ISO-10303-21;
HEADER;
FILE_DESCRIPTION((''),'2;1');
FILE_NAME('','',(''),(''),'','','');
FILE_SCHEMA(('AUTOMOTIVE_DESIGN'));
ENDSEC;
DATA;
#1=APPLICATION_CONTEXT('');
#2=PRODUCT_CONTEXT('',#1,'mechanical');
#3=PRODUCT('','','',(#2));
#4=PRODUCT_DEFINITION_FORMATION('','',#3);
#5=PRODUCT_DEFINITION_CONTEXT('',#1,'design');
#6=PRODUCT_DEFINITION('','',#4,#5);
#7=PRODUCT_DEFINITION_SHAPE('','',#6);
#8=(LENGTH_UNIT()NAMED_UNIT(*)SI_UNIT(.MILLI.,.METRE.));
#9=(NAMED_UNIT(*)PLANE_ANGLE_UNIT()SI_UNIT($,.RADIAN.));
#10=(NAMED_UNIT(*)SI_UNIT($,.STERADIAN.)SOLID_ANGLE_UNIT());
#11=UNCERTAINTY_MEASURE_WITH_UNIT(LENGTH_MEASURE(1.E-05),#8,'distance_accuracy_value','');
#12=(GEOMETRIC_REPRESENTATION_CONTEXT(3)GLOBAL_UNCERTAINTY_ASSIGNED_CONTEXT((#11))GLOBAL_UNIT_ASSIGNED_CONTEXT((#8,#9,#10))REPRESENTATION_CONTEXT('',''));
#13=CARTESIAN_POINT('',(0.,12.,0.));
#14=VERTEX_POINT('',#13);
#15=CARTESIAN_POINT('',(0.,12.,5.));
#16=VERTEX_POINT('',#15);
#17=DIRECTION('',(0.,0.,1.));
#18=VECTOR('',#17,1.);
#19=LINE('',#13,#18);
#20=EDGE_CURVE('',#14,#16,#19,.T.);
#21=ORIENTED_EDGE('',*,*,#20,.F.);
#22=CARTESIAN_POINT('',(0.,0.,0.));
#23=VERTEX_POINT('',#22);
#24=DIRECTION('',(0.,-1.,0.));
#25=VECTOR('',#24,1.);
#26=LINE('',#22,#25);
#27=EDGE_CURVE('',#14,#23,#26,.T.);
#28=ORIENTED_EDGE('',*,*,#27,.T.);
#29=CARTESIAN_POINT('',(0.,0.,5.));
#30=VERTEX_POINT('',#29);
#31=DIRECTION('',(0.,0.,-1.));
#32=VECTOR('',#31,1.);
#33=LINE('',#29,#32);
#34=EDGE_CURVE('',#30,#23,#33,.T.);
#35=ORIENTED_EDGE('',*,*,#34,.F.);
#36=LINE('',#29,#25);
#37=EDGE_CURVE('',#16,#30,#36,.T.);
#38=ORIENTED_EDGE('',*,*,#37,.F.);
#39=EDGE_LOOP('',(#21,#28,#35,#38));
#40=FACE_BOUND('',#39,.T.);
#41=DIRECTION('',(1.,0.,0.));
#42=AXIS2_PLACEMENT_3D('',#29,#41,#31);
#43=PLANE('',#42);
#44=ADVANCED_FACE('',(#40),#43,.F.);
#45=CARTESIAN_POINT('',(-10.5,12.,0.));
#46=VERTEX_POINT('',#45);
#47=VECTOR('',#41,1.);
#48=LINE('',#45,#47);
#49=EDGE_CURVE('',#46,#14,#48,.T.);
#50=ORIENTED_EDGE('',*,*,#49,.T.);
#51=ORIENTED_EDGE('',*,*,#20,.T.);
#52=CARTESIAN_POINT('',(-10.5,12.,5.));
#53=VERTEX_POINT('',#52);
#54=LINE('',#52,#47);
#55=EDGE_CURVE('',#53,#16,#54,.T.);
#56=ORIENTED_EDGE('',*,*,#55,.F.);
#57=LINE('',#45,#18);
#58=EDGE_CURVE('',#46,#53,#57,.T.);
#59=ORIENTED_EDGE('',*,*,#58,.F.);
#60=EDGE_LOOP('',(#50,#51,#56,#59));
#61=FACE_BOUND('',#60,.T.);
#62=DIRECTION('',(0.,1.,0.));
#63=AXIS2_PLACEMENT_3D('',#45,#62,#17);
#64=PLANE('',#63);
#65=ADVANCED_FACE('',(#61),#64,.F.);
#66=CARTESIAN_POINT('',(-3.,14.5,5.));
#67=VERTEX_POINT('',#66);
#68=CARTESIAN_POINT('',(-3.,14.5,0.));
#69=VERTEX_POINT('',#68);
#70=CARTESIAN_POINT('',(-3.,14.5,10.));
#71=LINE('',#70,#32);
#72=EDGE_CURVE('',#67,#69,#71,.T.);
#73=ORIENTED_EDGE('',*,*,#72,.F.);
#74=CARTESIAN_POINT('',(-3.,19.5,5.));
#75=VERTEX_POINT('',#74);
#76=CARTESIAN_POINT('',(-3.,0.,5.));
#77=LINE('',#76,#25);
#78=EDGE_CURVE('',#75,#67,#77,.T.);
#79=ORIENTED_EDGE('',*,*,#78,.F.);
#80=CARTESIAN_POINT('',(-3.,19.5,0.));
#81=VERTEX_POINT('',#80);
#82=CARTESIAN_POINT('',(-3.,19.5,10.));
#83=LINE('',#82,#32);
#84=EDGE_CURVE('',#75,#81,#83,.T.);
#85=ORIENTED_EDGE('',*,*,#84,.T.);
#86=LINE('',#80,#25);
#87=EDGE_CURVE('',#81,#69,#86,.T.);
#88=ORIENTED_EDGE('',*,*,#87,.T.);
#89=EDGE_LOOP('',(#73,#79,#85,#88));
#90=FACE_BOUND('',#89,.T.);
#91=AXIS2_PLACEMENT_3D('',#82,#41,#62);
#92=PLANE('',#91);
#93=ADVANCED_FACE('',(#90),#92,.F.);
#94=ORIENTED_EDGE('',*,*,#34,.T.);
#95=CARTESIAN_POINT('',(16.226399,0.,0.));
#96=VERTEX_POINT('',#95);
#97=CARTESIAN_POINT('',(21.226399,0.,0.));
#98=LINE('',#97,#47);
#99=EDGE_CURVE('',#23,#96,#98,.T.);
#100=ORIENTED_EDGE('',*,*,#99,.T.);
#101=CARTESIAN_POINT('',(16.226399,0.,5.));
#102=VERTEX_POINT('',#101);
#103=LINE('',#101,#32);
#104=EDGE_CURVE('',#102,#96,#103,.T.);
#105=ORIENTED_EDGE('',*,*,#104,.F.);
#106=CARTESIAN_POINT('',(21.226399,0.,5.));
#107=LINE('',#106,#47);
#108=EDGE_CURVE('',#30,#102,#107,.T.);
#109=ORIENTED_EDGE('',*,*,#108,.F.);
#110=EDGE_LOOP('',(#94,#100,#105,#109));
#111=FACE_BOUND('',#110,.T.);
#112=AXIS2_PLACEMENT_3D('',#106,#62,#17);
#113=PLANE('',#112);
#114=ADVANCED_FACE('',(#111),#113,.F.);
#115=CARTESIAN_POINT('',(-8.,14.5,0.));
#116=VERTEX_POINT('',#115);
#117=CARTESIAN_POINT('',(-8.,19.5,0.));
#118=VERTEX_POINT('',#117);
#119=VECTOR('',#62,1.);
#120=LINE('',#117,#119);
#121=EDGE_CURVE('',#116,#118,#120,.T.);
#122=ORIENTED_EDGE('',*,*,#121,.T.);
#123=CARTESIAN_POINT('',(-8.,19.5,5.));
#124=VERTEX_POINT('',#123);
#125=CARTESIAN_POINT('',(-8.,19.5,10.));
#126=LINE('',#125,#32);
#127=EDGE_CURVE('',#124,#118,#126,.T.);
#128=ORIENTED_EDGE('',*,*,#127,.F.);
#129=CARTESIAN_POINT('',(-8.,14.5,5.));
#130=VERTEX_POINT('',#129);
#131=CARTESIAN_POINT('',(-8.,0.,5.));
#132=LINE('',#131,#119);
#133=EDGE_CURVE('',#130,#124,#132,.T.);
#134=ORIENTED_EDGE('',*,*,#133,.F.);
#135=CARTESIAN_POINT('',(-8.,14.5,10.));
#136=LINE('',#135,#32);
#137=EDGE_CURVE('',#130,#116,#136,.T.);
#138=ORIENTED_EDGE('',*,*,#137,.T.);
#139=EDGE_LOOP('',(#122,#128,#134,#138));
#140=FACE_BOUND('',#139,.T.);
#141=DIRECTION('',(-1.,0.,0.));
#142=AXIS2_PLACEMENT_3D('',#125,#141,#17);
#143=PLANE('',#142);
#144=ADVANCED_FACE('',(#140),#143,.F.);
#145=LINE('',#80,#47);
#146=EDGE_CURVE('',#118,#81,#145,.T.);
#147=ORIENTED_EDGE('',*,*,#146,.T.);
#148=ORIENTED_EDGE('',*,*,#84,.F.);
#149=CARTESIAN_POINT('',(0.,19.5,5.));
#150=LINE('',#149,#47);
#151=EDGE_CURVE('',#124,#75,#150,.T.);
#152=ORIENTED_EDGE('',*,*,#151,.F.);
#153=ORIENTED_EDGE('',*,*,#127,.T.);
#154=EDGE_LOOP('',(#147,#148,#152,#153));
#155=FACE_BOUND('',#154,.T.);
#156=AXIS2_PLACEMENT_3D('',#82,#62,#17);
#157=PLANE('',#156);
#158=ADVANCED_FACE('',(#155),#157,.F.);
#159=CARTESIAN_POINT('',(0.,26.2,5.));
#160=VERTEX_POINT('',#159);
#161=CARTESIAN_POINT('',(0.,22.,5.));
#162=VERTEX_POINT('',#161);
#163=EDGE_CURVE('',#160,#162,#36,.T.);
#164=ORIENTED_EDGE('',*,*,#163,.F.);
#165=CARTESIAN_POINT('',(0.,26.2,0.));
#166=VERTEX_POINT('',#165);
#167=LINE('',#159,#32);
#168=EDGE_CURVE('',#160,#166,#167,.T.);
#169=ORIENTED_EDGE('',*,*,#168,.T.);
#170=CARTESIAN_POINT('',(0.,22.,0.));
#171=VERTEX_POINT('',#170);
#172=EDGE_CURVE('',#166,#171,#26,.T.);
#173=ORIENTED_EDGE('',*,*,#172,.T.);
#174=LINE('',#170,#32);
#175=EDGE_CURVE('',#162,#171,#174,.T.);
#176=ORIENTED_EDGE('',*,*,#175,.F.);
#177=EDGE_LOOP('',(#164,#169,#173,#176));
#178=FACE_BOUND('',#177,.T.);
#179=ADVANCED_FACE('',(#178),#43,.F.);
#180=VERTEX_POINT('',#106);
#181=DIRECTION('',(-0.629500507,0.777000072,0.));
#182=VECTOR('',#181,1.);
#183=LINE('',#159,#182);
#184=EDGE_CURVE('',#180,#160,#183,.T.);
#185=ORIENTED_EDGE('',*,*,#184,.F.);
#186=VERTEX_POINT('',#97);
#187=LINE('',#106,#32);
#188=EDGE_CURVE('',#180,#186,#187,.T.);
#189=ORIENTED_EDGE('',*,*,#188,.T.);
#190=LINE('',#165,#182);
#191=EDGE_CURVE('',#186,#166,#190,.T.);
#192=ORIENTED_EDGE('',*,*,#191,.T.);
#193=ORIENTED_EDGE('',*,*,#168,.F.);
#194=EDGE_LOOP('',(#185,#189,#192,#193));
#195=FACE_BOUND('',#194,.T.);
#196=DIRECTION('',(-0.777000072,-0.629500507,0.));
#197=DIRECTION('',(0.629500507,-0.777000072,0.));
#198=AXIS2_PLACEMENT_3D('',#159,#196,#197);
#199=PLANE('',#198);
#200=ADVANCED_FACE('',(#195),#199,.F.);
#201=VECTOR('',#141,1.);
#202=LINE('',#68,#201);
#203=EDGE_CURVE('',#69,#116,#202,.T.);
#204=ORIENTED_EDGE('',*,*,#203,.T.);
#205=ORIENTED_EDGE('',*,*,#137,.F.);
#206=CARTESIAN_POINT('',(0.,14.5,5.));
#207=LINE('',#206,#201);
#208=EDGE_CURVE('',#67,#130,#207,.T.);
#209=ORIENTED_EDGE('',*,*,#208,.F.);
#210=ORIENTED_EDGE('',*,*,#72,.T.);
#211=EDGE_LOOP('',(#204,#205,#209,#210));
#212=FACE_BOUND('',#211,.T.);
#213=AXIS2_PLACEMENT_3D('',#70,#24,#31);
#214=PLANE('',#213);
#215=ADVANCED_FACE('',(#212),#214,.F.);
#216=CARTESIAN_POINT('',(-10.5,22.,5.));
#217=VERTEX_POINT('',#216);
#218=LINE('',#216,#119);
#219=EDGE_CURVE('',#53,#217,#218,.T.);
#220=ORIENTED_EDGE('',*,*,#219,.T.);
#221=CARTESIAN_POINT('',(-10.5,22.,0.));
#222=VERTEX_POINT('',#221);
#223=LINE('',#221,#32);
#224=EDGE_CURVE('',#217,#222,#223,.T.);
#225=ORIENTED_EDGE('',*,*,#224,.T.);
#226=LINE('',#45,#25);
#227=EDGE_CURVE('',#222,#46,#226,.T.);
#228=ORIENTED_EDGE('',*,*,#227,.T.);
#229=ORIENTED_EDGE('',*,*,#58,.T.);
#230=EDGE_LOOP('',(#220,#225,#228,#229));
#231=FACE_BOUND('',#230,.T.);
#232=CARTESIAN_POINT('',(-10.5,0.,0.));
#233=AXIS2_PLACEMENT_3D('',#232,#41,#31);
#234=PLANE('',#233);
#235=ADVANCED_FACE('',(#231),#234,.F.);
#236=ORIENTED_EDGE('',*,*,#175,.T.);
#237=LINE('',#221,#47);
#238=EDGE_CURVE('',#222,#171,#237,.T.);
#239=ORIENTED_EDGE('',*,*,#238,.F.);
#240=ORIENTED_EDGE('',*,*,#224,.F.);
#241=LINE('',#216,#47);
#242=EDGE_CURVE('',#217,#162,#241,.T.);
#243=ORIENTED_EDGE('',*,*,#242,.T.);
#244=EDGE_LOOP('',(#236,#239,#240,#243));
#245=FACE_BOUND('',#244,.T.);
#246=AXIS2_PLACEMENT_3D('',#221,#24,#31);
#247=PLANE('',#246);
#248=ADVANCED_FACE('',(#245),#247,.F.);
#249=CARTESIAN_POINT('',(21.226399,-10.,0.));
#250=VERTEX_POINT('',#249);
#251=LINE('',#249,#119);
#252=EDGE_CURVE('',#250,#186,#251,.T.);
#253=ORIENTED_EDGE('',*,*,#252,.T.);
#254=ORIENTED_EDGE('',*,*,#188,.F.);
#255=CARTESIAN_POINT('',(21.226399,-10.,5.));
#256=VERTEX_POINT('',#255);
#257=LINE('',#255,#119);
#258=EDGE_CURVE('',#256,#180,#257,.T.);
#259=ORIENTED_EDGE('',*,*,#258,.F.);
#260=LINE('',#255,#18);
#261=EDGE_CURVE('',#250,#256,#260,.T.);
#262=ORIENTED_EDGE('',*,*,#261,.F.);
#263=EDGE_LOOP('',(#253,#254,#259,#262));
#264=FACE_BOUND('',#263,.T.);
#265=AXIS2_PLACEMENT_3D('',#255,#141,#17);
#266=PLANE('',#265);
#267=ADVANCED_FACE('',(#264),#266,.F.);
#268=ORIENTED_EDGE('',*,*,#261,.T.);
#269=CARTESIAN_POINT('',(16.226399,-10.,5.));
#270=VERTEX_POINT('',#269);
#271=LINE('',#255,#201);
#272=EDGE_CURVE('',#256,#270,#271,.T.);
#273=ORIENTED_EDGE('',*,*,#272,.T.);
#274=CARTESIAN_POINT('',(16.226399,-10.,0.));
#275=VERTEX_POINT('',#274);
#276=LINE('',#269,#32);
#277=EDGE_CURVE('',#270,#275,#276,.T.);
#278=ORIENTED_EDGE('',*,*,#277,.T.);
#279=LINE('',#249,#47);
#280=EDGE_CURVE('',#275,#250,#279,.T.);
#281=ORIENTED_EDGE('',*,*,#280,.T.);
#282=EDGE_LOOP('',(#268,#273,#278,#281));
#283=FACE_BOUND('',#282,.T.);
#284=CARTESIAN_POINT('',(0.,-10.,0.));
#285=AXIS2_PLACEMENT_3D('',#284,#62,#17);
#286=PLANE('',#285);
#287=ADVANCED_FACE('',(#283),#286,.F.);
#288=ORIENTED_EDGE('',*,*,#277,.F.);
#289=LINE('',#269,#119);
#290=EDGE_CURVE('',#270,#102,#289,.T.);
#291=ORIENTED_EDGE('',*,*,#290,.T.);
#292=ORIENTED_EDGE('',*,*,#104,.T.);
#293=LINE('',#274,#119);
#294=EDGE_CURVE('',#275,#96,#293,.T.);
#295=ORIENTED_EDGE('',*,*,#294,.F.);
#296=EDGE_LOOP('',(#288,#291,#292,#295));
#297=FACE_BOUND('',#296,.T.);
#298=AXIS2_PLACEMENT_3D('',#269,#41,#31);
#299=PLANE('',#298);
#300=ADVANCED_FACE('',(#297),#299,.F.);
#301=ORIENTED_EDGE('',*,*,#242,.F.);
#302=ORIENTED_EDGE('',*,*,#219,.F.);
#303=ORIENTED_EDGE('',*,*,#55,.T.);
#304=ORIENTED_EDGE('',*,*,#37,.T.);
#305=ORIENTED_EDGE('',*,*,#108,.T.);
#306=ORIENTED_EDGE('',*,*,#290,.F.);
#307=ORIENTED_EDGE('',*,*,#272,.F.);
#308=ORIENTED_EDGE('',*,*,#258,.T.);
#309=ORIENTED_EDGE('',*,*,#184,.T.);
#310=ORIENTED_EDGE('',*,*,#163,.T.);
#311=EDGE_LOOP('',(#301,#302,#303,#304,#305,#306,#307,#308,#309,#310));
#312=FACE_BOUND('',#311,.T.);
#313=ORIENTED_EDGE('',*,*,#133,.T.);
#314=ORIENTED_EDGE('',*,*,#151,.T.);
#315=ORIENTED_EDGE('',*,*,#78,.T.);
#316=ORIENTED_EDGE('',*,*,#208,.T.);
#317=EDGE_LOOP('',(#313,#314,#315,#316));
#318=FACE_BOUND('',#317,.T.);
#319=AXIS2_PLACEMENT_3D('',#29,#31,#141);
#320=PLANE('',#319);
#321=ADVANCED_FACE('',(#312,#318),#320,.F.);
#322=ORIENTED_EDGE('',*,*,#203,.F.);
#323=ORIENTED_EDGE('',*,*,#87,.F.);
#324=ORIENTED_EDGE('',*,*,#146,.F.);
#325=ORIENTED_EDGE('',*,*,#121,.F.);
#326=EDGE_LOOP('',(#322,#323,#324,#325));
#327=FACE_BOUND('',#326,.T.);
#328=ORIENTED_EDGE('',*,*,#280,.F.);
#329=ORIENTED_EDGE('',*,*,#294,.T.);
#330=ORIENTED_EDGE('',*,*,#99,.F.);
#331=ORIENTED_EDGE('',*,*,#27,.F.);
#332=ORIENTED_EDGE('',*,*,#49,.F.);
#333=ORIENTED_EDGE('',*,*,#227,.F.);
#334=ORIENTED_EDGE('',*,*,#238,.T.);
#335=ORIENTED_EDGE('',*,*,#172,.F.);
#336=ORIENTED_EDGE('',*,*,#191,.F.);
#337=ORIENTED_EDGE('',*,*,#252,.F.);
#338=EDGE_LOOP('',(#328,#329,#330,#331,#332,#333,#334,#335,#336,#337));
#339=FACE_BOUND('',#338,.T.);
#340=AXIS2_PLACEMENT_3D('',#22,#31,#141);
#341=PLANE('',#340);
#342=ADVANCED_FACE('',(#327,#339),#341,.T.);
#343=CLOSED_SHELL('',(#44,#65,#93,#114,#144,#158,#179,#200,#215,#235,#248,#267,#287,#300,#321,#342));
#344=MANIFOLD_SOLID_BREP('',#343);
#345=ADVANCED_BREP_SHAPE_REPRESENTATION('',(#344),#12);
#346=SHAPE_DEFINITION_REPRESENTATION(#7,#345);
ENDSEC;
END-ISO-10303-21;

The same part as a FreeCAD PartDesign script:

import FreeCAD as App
import Part
import Sketcher

V = App.Vector
Q = App.Units.Quantity

doc = App.newDocument("Part")
body = doc.addObject("PartDesign::Body", "Body")

# Sketch on XY plane
sketch1 = body.newObject("Sketcher::SketchObject", "Sketch")
sketch1.AttachmentSupport = (doc.getObject("XY_Plane"), [""])
sketch1.MapMode = "FlatFace"
sketch1.addGeometry([
    Part.LineSegment(V(0, 26, 0), V(0, 0, 0)),
    Part.LineSegment(V(0, 0, 0), V(21, 0, 0)),
    Part.LineSegment(V(21, 0, 0), V(0, 26, 0)),
], False)
sketch1.addConstraint([
    Sketcher.Constraint("Coincident", 0, 2, 1, 1),
    Sketcher.Constraint("Coincident", 1, 2, 2, 1),
    Sketcher.Constraint("Coincident", 2, 2, 0, 1),
    Sketcher.Constraint("Vertical", 0),
    Sketcher.Constraint("Horizontal", 1),
    Sketcher.Constraint("Coincident", 0, 2, -1, 1),
    Sketcher.Constraint("DistanceY", 0, 2, 0, 1, Q("26.2 mm")),
    Sketcher.Constraint("DistanceX", 1, 1, 1, 2, Q("21.226399 mm")),
])
pad1 = body.newObject("PartDesign::Pad", "Pad")
pad1.Profile = sketch1
pad1.Length = 5

# Sketch on XZ plane
sketch2 = body.newObject("Sketcher::SketchObject", "Sketch001")
sketch2.AttachmentSupport = (doc.getObject("XZ_Plane"), [""])
sketch2.MapMode = "FlatFace"
sketch2.addGeometry([
    Part.LineSegment(V(16, 5, 0), V(16, 0, 0)),
    Part.LineSegment(V(16, 0, 0), V(21, 0, 0)),
    Part.LineSegment(V(21, 0, 0), V(21, 5, 0)),
    Part.LineSegment(V(21, 5, 0), V(16, 5, 0)),
], False)
sketch2.addConstraint([
    Sketcher.Constraint("Coincident", 0, 2, 1, 1),
    Sketcher.Constraint("Coincident", 1, 2, 2, 1),
    Sketcher.Constraint("Coincident", 2, 2, 3, 1),
    Sketcher.Constraint("Coincident", 3, 2, 0, 1),
    Sketcher.Constraint("Vertical", 0),
    Sketcher.Constraint("Horizontal", 1),
    Sketcher.Constraint("Vertical", 2),
    Sketcher.Constraint("Horizontal", 3),
    Sketcher.Constraint("PointOnObject", 0, 2, -1),
    Sketcher.Constraint("Equal", 3, 0),
    Sketcher.Constraint("DistanceX", 1, 1, 1, 2, Q("5 mm")),
    Sketcher.Constraint("DistanceX", -1, 1, 0, 2, Q("16.226399 mm")),
])
pad2 = body.newObject("PartDesign::Pad", "Pad001")
pad2.Profile = sketch2
pad2.Length = 10

# Sketch on YZ plane
sketch3 = body.newObject("Sketcher::SketchObject", "Sketch002")
sketch3.AttachmentSupport = (doc.getObject("YZ_Plane"), [""])
sketch3.MapMode = "FlatFace"
sketch3.addGeometry([
    Part.LineSegment(V(22, 0, 0), V(12, 0, 0)),
    Part.LineSegment(V(12, 0, 0), V(12, 5, 0)),
    Part.LineSegment(V(12, 5, 0), V(22, 5, 0)),
    Part.LineSegment(V(22, 5, 0), V(22, 0, 0)),
], False)
sketch3.addConstraint([
    Sketcher.Constraint("Coincident", 0, 2, 1, 1),
    Sketcher.Constraint("Coincident", 1, 2, 2, 1),
    Sketcher.Constraint("Coincident", 2, 2, 3, 1),
    Sketcher.Constraint("Coincident", 3, 2, 0, 1),
    Sketcher.Constraint("Horizontal", 0),
    Sketcher.Constraint("Vertical", 1),
    Sketcher.Constraint("Horizontal", 2),
    Sketcher.Constraint("Vertical", 3),
    Sketcher.Constraint("PointOnObject", 0, 2, -1),
    Sketcher.Constraint("DistanceX", 0, 2, 0, 1, Q("10 mm")),
    Sketcher.Constraint("DistanceY", 1, 1, 1, 2, Q("5 mm")),
    Sketcher.Constraint("DistanceX", -1, 1, 0, 2, Q("12 mm")),
])
pad3 = body.newObject("PartDesign::Pad", "Pad002")
pad3.Profile = sketch3
pad3.Length = 10.5
pad3.Reversed = True

# Sketch on XY plane
sketch4 = body.newObject("Sketcher::SketchObject", "Sketch003")
sketch4.AttachmentSupport = (doc.getObject("XY_Plane"), [""])
sketch4.MapMode = "FlatFace"
sketch4.addGeometry([
    Part.LineSegment(V(-3, 20, 0), V(-3, 14, 0)),
    Part.LineSegment(V(-3, 14, 0), V(-8, 14, 0)),
    Part.LineSegment(V(-8, 14, 0), V(-8, 20, 0)),
    Part.LineSegment(V(-8, 20, 0), V(-3, 20, 0)),
], False)
sketch4.addConstraint([
    Sketcher.Constraint("Coincident", 0, 2, 1, 1),
    Sketcher.Constraint("Coincident", 1, 2, 2, 1),
    Sketcher.Constraint("Coincident", 2, 2, 3, 1),
    Sketcher.Constraint("Coincident", 3, 2, 0, 1),
    Sketcher.Constraint("Vertical", 0),
    Sketcher.Constraint("Horizontal", 1),
    Sketcher.Constraint("Vertical", 2),
    Sketcher.Constraint("Horizontal", 3),
    Sketcher.Constraint("Equal", 3, 0),
    Sketcher.Constraint("DistanceX", 1, 2, 1, 1, Q("5 mm")),
    Sketcher.Constraint("DistanceX", 0, 2, -1, 1, Q("3 mm")),
    Sketcher.Constraint("DistanceY", -1, 1, 0, 2, Q("14.5 mm")),
])
pocket1 = body.newObject("PartDesign::Pocket", "Pocket")
pocket1.Profile = sketch4
pocket1.Length = 10
pocket1.Reversed = True

doc.recompute()
